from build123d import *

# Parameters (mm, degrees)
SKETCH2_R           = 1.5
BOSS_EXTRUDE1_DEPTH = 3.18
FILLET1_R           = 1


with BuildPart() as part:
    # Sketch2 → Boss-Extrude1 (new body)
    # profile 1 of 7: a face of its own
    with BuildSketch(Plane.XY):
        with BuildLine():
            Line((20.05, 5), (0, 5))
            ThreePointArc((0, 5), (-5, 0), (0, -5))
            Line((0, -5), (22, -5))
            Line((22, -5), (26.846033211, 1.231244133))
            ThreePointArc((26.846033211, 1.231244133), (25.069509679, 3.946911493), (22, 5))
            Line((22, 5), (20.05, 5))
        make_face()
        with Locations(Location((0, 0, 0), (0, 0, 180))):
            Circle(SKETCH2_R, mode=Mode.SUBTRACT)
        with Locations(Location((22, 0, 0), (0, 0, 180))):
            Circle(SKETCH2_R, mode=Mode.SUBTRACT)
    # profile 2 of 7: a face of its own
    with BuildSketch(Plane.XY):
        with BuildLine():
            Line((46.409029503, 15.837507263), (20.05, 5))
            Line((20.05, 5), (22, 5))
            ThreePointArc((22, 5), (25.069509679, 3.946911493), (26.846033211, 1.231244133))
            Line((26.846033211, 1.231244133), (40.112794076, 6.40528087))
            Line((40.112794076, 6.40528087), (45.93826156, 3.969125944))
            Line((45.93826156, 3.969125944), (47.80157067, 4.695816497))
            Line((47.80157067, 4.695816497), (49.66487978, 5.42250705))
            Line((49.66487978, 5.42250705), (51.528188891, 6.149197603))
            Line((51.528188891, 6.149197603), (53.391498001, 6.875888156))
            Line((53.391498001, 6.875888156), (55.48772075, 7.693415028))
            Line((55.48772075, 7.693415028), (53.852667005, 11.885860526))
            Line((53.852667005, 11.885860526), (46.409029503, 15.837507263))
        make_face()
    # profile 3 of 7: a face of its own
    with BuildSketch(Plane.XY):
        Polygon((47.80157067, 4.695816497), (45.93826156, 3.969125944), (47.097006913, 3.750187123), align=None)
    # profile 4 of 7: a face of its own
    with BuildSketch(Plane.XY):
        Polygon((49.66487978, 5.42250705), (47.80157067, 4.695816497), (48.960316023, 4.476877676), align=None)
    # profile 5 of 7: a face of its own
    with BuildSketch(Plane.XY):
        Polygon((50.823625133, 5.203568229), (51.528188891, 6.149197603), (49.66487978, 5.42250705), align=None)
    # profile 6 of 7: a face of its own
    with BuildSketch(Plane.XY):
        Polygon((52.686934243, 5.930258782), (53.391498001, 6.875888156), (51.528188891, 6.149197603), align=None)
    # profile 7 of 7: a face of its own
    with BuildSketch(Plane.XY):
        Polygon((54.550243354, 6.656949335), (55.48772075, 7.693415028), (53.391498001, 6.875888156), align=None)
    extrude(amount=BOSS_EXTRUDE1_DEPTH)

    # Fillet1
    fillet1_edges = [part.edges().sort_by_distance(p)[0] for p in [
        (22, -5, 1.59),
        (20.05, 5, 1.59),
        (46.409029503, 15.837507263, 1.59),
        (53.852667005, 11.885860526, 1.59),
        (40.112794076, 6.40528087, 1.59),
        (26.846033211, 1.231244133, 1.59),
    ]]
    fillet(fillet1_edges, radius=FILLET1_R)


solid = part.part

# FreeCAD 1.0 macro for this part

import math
import FreeCAD as App
import Part
import Sketcher

V = App.Vector
Q = App.Units.Quantity


def edges_at(feature, points):
    """Names of the edges that pass closest to the given points."""
    edges = feature.Shape.Edges
    near = lambda p: min(range(len(edges)), key=lambda i: edges[i].distToShape(Part.Vertex(*p))[0])
    return sorted({f"Edge{near(p) + 1}" for p in points})

doc = App.newDocument("Part")
body = doc.addObject("PartDesign::Body", "Body")

# Sketch on XY plane
sketch1 = body.newObject("Sketcher::SketchObject", "Sketch")
sketch1.AttachmentSupport = (doc.getObject("XY_Plane"), [""])
sketch1.MapMode = "FlatFace"
sketch1.addGeometry(Part.ArcOfCircle(Part.Circle(V(0, 0, 0), V(0, 0, 1), 5), math.radians(90), math.radians(270)), False)
sketch1.addGeometry(Part.LineSegment(V(0, -5, 0), V(22, -5, 0)), False)
sketch1.addGeometry(Part.LineSegment(V(22, -5, 0), V(26.846033, 1.231244, 0)), False)
sketch1.addGeometry(Part.LineSegment(V(26.846033, 1.231244, 0), V(40.112794, 6.405281, 0)), False)
sketch1.addGeometry(Part.LineSegment(V(40.112794, 6.405281, 0), V(45.938262, 3.969126, 0)), False)
sketch1.addGeometry(Part.LineSegment(V(45.938262, 3.969126, 0), V(47.097007, 3.750187, 0)), False)
sketch1.addGeometry(Part.LineSegment(V(47.097007, 3.750187, 0), V(47.801571, 4.695816, 0)), False)
sketch1.addGeometry(Part.LineSegment(V(47.801571, 4.695816, 0), V(48.960316, 4.476878, 0)), False)
sketch1.addGeometry(Part.LineSegment(V(48.960316, 4.476878, 0), V(49.66488, 5.422507, 0)), False)
sketch1.addGeometry(Part.LineSegment(V(49.66488, 5.422507, 0), V(50.823625, 5.203568, 0)), False)
sketch1.addGeometry(Part.LineSegment(V(50.823625, 5.203568, 0), V(51.528189, 6.149198, 0)), False)
sketch1.addGeometry(Part.LineSegment(V(51.528189, 6.149198, 0), V(52.686934, 5.930259, 0)), False)
sketch1.addGeometry(Part.LineSegment(V(52.686934, 5.930259, 0), V(53.391498, 6.875888, 0)), False)
sketch1.addGeometry(Part.LineSegment(V(53.391498, 6.875888, 0), V(54.550243, 6.656949, 0)), False)
sketch1.addGeometry(Part.LineSegment(V(54.550243, 6.656949, 0), V(55.487721, 7.693415, 0)), False)
sketch1.addGeometry(Part.LineSegment(V(55.487721, 7.693415, 0), V(53.852667, 11.885861, 0)), False)
sketch1.addGeometry(Part.LineSegment(V(53.852667, 11.885861, 0), V(46.40903, 15.837507, 0)), False)
sketch1.addGeometry(Part.LineSegment(V(46.40903, 15.837507, 0), V(20.05, 5, 0)), False)
sketch1.addGeometry(Part.LineSegment(V(20.05, 5, 0), V(0, 5, 0)), False)
sketch1.addGeometry(Part.Circle(V(0, 0, 0), V(0, 0, 1), 1.5), False)
sketch1.addGeometry(Part.Circle(V(22, 0, 0), V(0, 0, 1), 1.5), False)
sketch1.addConstraint(Sketcher.Constraint("Tangent", 0, 2, 1, 1))
sketch1.addConstraint(Sketcher.Constraint("Coincident", 1, 2, 2, 1))
sketch1.addConstraint(Sketcher.Constraint("Coincident", 2, 2, 3, 1))
sketch1.addConstraint(Sketcher.Constraint("Coincident", 3, 2, 4, 1))
sketch1.addConstraint(Sketcher.Constraint("Coincident", 4, 2, 5, 1))
sketch1.addConstraint(Sketcher.Constraint("Coincident", 5, 2, 6, 1))
sketch1.addConstraint(Sketcher.Constraint("Coincident", 6, 2, 7, 1))
sketch1.addConstraint(Sketcher.Constraint("Coincident", 7, 2, 8, 1))
sketch1.addConstraint(Sketcher.Constraint("Coincident", 8, 2, 9, 1))
sketch1.addConstraint(Sketcher.Constraint("Coincident", 9, 2, 10, 1))
sketch1.addConstraint(Sketcher.Constraint("Coincident", 10, 2, 11, 1))
sketch1.addConstraint(Sketcher.Constraint("Coincident", 11, 2, 12, 1))
sketch1.addConstraint(Sketcher.Constraint("Coincident", 12, 2, 13, 1))
sketch1.addConstraint(Sketcher.Constraint("Coincident", 13, 2, 14, 1))
sketch1.addConstraint(Sketcher.Constraint("Coincident", 14, 2, 15, 1))
sketch1.addConstraint(Sketcher.Constraint("Coincident", 15, 2, 16, 1))
sketch1.addConstraint(Sketcher.Constraint("Coincident", 16, 2, 17, 1))
sketch1.addConstraint(Sketcher.Constraint("Coincident", 17, 2, 18, 1))
sketch1.addConstraint(Sketcher.Constraint("Tangent", 18, 2, 0, 1))
sketch1.addConstraint(Sketcher.Constraint("Horizontal", 1))
sketch1.addConstraint(Sketcher.Constraint("Horizontal", 18))
sketch1.addConstraint(Sketcher.Constraint("Coincident", 0, 3, -1, 1))
sketch1.addConstraint(Sketcher.Constraint("Coincident", 19, 3, -1, 1))
sketch1.addConstraint(Sketcher.Constraint("Equal", 19, 20))
sketch1.addConstraint(Sketcher.Constraint("PointOnObject", 20, 3, -1))
sketch1.addConstraint(Sketcher.Constraint("Parallel", 5, 7))
sketch1.addConstraint(Sketcher.Constraint("Parallel", 6, 8))
sketch1.addConstraint(Sketcher.Constraint("Parallel", 7, 9))
sketch1.addConstraint(Sketcher.Constraint("Parallel", 8, 10))
sketch1.addConstraint(Sketcher.Constraint("Parallel", 9, 11))
sketch1.addConstraint(Sketcher.Constraint("Parallel", 10, 12))
sketch1.addConstraint(Sketcher.Constraint("Parallel", 11, 13))
sketch1.addConstraint(Sketcher.Constraint("Perpendicular", 3, 15))
sketch1.addConstraint(Sketcher.Constraint("Vertical", 20, 3, 1, 2))
sketch1.addConstraint(Sketcher.Constraint("Equal", 5, 6))
sketch1.addConstraint(Sketcher.Constraint("Equal", 6, 7))
sketch1.addConstraint(Sketcher.Constraint("Equal", 7, 8))
sketch1.addConstraint(Sketcher.Constraint("Equal", 8, 9))
sketch1.addConstraint(Sketcher.Constraint("Equal", 9, 10))
sketch1.addConstraint(Sketcher.Constraint("Equal", 10, 11))
sketch1.addConstraint(Sketcher.Constraint("Equal", 11, 12))
sketch1.addConstraint(Sketcher.Constraint("Equal", 12, 13))
sketch1.addConstraint(Sketcher.Constraint("Diameter", 19, 3.0))
sketch1.addConstraint(Sketcher.Constraint("Radius", 0, 5.0))
sketch1.addConstraint(Sketcher.Constraint("DistanceX", 1, 1, 1, 2, 22.0))
sketch1.addConstraint(Sketcher.Constraint("Distance", 15, 4.5))
sketch1.addConstraint(Sketcher.Constraint("Distance", 17, 28.5))
sketch1.addConstraint(Sketcher.Constraint("DistanceX", 18, 2, 18, 1, 20.05))
sketch1.addConstraint(Sketcher.Constraint("Angle", 17, Q("-157.65 deg")))
sketch1.addConstraint(Sketcher.Constraint("Distance", 3, 14.24))
sketch1.addConstraint(Sketcher.Constraint("DistanceY", 8, 2, 16, 2, 10.415))
sketch1.addConstraint(Sketcher.Constraint("DistanceX", -1, 1, 12, 2, 53.391498))
sketch1.addConstraint(Sketcher.Constraint("DistanceY", 11, 2, 15, 2, 5.955602))
sketch1.addConstraint(Sketcher.Constraint("Distance", 16, 8.427529))
sketch1.addConstraint(Sketcher.Constraint("DistanceY", -1, 1, 3, 2, 6.405281))
sketch1.addConstraint(Sketcher.Constraint("DistanceX", -1, 1, 4, 2, 45.938262))
sketch1.addConstraint(Sketcher.Constraint("DistanceY", -1, 1, 9, 2, 5.203568))
sketch1.addConstraint(Sketcher.Constraint("DistanceY", -1, 1, 11, 2, 5.930259))
sketch1.addConstraint(Sketcher.Constraint("DistanceX", -1, 1, 14, 2, 55.487721))
sketch1.addConstraint(Sketcher.Constraint("DistanceX", 2, 2, 4, 2, 19.092228))
pad1 = body.newObject("PartDesign::Pad", "Pad")
pad1.Profile = sketch1
pad1.Length = 3.18
doc.recompute()

fillet = body.newObject("PartDesign::Fillet", "Fillet")
fillet.Base = (pad1, edges_at(pad1, [
    (22, -5, 1.59),
    (20.05, 5, 1.59),
    (46.409, 15.838, 1.59),
    (53.853, 11.886, 1.59),
    (40.113, 6.405, 1.59),
    (26.846, 1.231, 1.59),
]))
fillet.Radius = 1

doc.recompute()
